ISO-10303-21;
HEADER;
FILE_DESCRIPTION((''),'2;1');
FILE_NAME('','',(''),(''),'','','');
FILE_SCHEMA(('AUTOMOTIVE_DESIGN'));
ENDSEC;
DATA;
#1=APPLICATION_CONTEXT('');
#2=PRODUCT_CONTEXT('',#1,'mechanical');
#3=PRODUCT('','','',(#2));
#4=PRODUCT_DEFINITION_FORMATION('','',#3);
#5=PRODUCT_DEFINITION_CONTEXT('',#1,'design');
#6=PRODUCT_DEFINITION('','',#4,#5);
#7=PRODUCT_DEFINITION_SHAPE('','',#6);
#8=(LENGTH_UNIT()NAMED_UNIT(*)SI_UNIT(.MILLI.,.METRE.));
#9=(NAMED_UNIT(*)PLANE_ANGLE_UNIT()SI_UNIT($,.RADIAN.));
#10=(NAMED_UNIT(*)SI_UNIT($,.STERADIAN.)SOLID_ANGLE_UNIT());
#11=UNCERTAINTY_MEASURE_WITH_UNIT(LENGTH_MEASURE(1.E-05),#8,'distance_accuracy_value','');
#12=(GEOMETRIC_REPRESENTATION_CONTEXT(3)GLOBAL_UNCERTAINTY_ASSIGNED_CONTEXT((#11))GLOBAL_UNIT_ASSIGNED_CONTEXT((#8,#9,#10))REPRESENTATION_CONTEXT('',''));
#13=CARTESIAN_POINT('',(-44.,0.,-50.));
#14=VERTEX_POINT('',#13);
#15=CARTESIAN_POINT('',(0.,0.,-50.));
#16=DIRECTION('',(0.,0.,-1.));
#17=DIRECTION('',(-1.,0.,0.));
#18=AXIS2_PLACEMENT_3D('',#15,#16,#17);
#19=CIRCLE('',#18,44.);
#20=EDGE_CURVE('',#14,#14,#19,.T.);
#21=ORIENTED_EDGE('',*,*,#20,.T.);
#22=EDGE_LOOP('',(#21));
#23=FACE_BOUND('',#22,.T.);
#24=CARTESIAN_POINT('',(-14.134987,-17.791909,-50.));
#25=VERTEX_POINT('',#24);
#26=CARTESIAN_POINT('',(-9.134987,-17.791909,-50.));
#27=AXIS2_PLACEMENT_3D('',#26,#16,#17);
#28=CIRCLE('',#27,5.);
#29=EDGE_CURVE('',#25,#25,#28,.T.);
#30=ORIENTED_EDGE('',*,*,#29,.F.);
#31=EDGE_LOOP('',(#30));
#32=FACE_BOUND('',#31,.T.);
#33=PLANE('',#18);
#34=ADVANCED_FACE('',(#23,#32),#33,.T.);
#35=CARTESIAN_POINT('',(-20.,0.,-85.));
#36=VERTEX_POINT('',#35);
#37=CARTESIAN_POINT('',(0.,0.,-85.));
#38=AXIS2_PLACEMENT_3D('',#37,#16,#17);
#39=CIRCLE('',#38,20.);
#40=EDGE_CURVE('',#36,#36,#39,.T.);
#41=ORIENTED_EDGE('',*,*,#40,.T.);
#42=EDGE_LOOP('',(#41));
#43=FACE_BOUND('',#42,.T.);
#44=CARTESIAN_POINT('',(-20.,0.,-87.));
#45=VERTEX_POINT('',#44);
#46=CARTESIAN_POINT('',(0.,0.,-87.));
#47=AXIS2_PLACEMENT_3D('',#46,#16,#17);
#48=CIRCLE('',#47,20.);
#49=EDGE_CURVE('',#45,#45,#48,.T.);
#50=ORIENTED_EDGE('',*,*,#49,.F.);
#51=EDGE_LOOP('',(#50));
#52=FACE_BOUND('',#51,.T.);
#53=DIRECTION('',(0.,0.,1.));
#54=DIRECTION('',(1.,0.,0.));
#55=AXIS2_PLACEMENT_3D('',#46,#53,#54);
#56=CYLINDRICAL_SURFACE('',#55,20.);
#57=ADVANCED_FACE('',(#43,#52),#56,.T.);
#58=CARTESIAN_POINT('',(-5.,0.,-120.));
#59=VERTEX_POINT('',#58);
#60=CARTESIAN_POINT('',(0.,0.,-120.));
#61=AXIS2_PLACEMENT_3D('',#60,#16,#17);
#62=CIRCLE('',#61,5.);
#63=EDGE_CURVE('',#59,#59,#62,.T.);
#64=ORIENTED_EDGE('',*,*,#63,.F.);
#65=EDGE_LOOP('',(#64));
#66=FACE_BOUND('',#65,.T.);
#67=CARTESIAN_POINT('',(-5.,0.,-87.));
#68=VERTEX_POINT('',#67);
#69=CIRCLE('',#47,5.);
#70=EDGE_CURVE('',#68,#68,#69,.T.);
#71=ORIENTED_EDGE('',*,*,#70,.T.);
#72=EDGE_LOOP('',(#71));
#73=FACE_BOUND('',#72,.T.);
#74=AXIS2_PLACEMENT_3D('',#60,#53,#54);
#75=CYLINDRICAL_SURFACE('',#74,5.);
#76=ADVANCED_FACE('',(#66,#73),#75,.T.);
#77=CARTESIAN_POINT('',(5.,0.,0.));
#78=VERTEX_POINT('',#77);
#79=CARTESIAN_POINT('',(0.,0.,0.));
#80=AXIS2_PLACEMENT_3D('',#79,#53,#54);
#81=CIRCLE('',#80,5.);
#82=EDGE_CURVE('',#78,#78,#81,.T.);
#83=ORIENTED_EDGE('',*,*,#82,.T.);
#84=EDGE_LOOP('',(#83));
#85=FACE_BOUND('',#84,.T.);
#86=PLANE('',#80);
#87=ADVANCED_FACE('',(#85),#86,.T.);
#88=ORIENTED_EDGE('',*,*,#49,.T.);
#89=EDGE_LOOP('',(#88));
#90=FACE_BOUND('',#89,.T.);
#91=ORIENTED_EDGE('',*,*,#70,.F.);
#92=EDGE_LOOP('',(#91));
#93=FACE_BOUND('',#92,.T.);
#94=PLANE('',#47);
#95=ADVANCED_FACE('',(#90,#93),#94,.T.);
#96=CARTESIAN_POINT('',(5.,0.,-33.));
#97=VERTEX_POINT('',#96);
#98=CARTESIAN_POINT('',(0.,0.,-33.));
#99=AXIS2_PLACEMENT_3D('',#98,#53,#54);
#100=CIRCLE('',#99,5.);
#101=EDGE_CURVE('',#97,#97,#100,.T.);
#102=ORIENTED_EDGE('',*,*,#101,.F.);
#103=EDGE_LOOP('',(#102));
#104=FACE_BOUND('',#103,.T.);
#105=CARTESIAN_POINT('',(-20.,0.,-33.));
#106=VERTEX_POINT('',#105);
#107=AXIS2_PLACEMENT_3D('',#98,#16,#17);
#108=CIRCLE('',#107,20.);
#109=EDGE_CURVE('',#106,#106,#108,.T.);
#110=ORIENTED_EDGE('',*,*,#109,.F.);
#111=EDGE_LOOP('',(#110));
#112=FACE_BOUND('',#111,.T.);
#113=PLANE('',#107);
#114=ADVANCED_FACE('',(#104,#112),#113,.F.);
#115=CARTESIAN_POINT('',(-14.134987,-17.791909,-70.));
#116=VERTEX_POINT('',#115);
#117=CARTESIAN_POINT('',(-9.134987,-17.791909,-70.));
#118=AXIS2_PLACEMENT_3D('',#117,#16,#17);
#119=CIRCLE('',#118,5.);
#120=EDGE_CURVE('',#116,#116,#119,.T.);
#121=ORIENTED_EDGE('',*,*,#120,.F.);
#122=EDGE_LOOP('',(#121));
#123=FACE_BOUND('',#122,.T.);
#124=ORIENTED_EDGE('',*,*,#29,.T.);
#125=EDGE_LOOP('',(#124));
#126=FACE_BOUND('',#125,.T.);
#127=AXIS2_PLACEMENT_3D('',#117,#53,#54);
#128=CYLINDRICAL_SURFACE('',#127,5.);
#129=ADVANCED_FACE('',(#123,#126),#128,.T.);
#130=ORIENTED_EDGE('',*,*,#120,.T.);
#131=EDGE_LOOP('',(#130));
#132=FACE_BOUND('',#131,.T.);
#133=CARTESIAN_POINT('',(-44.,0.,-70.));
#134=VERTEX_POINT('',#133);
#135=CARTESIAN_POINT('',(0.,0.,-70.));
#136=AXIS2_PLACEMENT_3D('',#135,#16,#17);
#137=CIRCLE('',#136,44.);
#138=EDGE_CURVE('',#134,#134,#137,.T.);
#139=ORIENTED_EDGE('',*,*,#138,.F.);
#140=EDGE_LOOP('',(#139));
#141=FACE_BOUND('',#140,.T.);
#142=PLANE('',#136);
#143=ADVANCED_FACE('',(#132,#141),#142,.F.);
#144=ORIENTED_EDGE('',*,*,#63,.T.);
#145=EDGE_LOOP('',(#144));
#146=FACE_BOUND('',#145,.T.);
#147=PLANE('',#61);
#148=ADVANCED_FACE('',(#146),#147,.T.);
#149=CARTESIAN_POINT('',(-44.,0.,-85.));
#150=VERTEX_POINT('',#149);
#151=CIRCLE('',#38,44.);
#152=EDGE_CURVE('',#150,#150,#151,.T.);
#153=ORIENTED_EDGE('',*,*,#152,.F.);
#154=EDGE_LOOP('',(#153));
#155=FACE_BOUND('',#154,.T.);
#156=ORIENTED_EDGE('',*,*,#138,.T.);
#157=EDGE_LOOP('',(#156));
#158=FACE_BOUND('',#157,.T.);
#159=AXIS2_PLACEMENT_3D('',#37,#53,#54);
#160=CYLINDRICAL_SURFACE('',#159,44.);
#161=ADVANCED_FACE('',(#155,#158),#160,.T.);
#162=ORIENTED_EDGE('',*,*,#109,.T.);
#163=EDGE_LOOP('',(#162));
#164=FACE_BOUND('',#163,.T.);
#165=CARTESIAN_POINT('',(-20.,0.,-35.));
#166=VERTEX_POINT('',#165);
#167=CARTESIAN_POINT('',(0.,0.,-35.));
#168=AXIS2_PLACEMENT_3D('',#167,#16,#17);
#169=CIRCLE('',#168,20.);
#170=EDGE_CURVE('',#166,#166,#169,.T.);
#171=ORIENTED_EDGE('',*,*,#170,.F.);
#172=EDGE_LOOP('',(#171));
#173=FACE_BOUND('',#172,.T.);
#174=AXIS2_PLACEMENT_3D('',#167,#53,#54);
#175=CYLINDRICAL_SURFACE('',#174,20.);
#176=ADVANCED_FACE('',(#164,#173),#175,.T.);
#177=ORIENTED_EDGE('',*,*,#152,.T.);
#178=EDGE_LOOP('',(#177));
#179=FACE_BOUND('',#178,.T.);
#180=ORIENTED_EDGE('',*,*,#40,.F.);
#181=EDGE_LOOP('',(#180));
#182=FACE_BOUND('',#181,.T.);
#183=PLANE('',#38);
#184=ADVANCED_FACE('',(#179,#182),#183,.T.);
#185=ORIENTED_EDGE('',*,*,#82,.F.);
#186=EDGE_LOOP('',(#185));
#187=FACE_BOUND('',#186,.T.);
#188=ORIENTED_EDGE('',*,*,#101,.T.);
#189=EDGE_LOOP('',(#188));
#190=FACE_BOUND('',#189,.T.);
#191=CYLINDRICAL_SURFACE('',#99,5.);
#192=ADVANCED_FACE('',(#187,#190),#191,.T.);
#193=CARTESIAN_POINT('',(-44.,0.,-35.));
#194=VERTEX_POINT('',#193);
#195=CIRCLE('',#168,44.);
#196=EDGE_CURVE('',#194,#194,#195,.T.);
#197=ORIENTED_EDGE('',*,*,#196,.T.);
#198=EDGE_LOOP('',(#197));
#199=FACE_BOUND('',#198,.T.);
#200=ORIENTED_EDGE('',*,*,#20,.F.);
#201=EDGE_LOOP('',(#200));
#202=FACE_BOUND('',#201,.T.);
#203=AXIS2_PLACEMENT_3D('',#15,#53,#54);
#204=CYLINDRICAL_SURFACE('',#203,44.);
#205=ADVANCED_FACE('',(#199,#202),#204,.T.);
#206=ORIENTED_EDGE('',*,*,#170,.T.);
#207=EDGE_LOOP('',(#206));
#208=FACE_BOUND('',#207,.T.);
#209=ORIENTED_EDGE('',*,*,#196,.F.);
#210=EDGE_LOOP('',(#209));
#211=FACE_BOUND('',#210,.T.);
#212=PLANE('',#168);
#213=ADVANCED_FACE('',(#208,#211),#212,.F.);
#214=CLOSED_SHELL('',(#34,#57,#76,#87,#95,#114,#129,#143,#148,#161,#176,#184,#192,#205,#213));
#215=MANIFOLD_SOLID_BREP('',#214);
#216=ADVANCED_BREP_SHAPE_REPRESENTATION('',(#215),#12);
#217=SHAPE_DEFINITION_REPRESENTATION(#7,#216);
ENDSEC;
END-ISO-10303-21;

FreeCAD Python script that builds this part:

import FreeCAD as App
import Part
import Sketcher

doc = App.newDocument("Part")
params = doc.addObject("Spreadsheet::Sheet", "Params")
for row, (alias, value) in enumerate([
    ("sketch1_diameter", "10 mm"),
    ("pad1_length", "33 mm"),
    ("sketch2_diameter", "40 mm"),
    ("pad2_length", "2 mm"),
    ("sketch3_diameter", "88 mm"),
    ("pad3_length", "15 mm"),
    ("sketch4_diameter", "10 mm"),
    ("pad4_length", "20 mm"),
    ("sketch5_diameter", "88 mm"),
    ("pad5_length", "15 mm"),
    ("sketch6_diameter", "40 mm"),
    ("pad6_length", "2 mm"),
    ("sketch7_diameter", "10 mm"),
    ("pad7_length", "33 mm"),
], start=1):
    params.set(f"A{row}", alias)
    params.set(f"B{row}", "=" + value)
    params.setAlias(f"B{row}", alias)

body = doc.addObject("PartDesign::Body", "Body")

sketch1 = body.newObject("Sketcher::SketchObject", "Sketch")
sketch1.AttachmentSupport = (doc.getObject("XY_Plane"), [""])
sketch1.MapMode = "FlatFace"
sketch1.addGeometry(Part.Circle(App.Vector(0, 0, 0), App.Vector(0, 0, 1), 5), False)
sketch1.addConstraint(Sketcher.Constraint("Coincident", 0, 3, -1, 1))
sketch1.addConstraint(Sketcher.Constraint("Diameter", 0, 10.0))
sketch1.setExpression("Constraints[1]", "Params.sketch1_diameter")
pad1 = body.newObject("PartDesign::Pad", "Pad")
pad1.Profile = sketch1
pad1.setExpression("Length", "Params.pad1_length")
pad1.Reversed = True

sketch2 = body.newObject("Sketcher::SketchObject", "Sketch001")
sketch2.AttachmentSupport = (doc.getObject("XY_Plane"), [""])
sketch2.MapMode = "FlatFace"
sketch2.AttachmentOffset = App.Placement(App.Vector(0, 0, -33), App.Rotation())
sketch2.addGeometry(Part.Circle(App.Vector(0, 0, 0), App.Vector(0, 0, 1), 20), False)
sketch2.addConstraint(Sketcher.Constraint("Coincident", 0, 3, -1, 1))
sketch2.addConstraint(Sketcher.Constraint("Diameter", 0, 40.0))
sketch2.setExpression("Constraints[1]", "Params.sketch2_diameter")
pad2 = body.newObject("PartDesign::Pad", "Pad001")
pad2.Profile = sketch2
pad2.setExpression("Length", "Params.pad2_length")
pad2.Reversed = True

sketch3 = body.newObject("Sketcher::SketchObject", "Sketch002")
sketch3.AttachmentSupport = (doc.getObject("XY_Plane"), [""])
sketch3.MapMode = "FlatFace"
sketch3.AttachmentOffset = App.Placement(App.Vector(0, 0, -35), App.Rotation())
sketch3.addGeometry(Part.Circle(App.Vector(0, 0, 0), App.Vector(0, 0, 1), 44), False)
sketch3.addConstraint(Sketcher.Constraint("Coincident", 0, 3, -1, 1))
sketch3.addConstraint(Sketcher.Constraint("Diameter", 0, 88.0))
sketch3.setExpression("Constraints[1]", "Params.sketch3_diameter")
pad3 = body.newObject("PartDesign::Pad", "Pad002")
pad3.Profile = sketch3
pad3.setExpression("Length", "Params.pad3_length")
pad3.Reversed = True

sketch4 = body.newObject("Sketcher::SketchObject", "Sketch003")
sketch4.AttachmentSupport = (doc.getObject("XY_Plane"), [""])
sketch4.MapMode = "FlatFace"
sketch4.AttachmentOffset = App.Placement(App.Vector(0, 0, -50), App.Rotation())
sketch4.addGeometry(Part.Circle(App.Vector(-9, -18, 0), App.Vector(0, 0, 1), 5), False)
sketch4.addConstraint(Sketcher.Constraint("Diameter", 0, 10.0))
sketch4.addConstraint(Sketcher.Constraint("DistanceY", 0, 3, -1, 1, 17.791909))
sketch4.addConstraint(Sketcher.Constraint("DistanceX", 0, 3, -1, 1, 9.134987))
sketch4.setExpression("Constraints[0]", "Params.sketch4_diameter")
pad4 = body.newObject("PartDesign::Pad", "Pad003")
pad4.Profile = sketch4
pad4.setExpression("Length", "Params.pad4_length")
pad4.Reversed = True

sketch5 = body.newObject("Sketcher::SketchObject", "Sketch004")
sketch5.AttachmentSupport = (doc.getObject("XY_Plane"), [""])
sketch5.MapMode = "FlatFace"
sketch5.AttachmentOffset = App.Placement(App.Vector(0, 0, -70), App.Rotation())
sketch5.addGeometry(Part.Circle(App.Vector(0, 0, 0), App.Vector(0, 0, 1), 44), False)
sketch5.addConstraint(Sketcher.Constraint("Coincident", 0, 3, -1, 1))
sketch5.addConstraint(Sketcher.Constraint("Diameter", 0, 88.0))
sketch5.setExpression("Constraints[1]", "Params.sketch5_diameter")
pad5 = body.newObject("PartDesign::Pad", "Pad004")
pad5.Profile = sketch5
pad5.setExpression("Length", "Params.pad5_length")
pad5.Reversed = True

sketch6 = body.newObject("Sketcher::SketchObject", "Sketch005")
sketch6.AttachmentSupport = (doc.getObject("XY_Plane"), [""])
sketch6.MapMode = "FlatFace"
sketch6.AttachmentOffset = App.Placement(App.Vector(0, 0, -85), App.Rotation())
sketch6.addGeometry(Part.Circle(App.Vector(0, 0, 0), App.Vector(0, 0, 1), 20), False)
sketch6.addConstraint(Sketcher.Constraint("Coincident", 0, 3, -1, 1))
sketch6.addConstraint(Sketcher.Constraint("Diameter", 0, 40.0))
sketch6.setExpression("Constraints[1]", "Params.sketch6_diameter")
pad6 = body.newObject("PartDesign::Pad", "Pad005")
pad6.Profile = sketch6
pad6.setExpression("Length", "Params.pad6_length")
pad6.Reversed = True

sketch7 = body.newObject("Sketcher::SketchObject", "Sketch006")
sketch7.AttachmentSupport = (doc.getObject("XY_Plane"), [""])
sketch7.MapMode = "FlatFace"
sketch7.AttachmentOffset = App.Placement(App.Vector(0, 0, -87), App.Rotation())
sketch7.addGeometry(Part.Circle(App.Vector(0, 0, 0), App.Vector(0, 0, 1), 5), False)
sketch7.addConstraint(Sketcher.Constraint("Coincident", 0, 3, -1, 1))
sketch7.addConstraint(Sketcher.Constraint("Diameter", 0, 10.0))
sketch7.setExpression("Constraints[1]", "Params.sketch7_diameter")
pad7 = body.newObject("PartDesign::Pad", "Pad006")
pad7.Profile = sketch7
pad7.setExpression("Length", "Params.pad7_length")
pad7.Reversed = True

doc.recompute()
